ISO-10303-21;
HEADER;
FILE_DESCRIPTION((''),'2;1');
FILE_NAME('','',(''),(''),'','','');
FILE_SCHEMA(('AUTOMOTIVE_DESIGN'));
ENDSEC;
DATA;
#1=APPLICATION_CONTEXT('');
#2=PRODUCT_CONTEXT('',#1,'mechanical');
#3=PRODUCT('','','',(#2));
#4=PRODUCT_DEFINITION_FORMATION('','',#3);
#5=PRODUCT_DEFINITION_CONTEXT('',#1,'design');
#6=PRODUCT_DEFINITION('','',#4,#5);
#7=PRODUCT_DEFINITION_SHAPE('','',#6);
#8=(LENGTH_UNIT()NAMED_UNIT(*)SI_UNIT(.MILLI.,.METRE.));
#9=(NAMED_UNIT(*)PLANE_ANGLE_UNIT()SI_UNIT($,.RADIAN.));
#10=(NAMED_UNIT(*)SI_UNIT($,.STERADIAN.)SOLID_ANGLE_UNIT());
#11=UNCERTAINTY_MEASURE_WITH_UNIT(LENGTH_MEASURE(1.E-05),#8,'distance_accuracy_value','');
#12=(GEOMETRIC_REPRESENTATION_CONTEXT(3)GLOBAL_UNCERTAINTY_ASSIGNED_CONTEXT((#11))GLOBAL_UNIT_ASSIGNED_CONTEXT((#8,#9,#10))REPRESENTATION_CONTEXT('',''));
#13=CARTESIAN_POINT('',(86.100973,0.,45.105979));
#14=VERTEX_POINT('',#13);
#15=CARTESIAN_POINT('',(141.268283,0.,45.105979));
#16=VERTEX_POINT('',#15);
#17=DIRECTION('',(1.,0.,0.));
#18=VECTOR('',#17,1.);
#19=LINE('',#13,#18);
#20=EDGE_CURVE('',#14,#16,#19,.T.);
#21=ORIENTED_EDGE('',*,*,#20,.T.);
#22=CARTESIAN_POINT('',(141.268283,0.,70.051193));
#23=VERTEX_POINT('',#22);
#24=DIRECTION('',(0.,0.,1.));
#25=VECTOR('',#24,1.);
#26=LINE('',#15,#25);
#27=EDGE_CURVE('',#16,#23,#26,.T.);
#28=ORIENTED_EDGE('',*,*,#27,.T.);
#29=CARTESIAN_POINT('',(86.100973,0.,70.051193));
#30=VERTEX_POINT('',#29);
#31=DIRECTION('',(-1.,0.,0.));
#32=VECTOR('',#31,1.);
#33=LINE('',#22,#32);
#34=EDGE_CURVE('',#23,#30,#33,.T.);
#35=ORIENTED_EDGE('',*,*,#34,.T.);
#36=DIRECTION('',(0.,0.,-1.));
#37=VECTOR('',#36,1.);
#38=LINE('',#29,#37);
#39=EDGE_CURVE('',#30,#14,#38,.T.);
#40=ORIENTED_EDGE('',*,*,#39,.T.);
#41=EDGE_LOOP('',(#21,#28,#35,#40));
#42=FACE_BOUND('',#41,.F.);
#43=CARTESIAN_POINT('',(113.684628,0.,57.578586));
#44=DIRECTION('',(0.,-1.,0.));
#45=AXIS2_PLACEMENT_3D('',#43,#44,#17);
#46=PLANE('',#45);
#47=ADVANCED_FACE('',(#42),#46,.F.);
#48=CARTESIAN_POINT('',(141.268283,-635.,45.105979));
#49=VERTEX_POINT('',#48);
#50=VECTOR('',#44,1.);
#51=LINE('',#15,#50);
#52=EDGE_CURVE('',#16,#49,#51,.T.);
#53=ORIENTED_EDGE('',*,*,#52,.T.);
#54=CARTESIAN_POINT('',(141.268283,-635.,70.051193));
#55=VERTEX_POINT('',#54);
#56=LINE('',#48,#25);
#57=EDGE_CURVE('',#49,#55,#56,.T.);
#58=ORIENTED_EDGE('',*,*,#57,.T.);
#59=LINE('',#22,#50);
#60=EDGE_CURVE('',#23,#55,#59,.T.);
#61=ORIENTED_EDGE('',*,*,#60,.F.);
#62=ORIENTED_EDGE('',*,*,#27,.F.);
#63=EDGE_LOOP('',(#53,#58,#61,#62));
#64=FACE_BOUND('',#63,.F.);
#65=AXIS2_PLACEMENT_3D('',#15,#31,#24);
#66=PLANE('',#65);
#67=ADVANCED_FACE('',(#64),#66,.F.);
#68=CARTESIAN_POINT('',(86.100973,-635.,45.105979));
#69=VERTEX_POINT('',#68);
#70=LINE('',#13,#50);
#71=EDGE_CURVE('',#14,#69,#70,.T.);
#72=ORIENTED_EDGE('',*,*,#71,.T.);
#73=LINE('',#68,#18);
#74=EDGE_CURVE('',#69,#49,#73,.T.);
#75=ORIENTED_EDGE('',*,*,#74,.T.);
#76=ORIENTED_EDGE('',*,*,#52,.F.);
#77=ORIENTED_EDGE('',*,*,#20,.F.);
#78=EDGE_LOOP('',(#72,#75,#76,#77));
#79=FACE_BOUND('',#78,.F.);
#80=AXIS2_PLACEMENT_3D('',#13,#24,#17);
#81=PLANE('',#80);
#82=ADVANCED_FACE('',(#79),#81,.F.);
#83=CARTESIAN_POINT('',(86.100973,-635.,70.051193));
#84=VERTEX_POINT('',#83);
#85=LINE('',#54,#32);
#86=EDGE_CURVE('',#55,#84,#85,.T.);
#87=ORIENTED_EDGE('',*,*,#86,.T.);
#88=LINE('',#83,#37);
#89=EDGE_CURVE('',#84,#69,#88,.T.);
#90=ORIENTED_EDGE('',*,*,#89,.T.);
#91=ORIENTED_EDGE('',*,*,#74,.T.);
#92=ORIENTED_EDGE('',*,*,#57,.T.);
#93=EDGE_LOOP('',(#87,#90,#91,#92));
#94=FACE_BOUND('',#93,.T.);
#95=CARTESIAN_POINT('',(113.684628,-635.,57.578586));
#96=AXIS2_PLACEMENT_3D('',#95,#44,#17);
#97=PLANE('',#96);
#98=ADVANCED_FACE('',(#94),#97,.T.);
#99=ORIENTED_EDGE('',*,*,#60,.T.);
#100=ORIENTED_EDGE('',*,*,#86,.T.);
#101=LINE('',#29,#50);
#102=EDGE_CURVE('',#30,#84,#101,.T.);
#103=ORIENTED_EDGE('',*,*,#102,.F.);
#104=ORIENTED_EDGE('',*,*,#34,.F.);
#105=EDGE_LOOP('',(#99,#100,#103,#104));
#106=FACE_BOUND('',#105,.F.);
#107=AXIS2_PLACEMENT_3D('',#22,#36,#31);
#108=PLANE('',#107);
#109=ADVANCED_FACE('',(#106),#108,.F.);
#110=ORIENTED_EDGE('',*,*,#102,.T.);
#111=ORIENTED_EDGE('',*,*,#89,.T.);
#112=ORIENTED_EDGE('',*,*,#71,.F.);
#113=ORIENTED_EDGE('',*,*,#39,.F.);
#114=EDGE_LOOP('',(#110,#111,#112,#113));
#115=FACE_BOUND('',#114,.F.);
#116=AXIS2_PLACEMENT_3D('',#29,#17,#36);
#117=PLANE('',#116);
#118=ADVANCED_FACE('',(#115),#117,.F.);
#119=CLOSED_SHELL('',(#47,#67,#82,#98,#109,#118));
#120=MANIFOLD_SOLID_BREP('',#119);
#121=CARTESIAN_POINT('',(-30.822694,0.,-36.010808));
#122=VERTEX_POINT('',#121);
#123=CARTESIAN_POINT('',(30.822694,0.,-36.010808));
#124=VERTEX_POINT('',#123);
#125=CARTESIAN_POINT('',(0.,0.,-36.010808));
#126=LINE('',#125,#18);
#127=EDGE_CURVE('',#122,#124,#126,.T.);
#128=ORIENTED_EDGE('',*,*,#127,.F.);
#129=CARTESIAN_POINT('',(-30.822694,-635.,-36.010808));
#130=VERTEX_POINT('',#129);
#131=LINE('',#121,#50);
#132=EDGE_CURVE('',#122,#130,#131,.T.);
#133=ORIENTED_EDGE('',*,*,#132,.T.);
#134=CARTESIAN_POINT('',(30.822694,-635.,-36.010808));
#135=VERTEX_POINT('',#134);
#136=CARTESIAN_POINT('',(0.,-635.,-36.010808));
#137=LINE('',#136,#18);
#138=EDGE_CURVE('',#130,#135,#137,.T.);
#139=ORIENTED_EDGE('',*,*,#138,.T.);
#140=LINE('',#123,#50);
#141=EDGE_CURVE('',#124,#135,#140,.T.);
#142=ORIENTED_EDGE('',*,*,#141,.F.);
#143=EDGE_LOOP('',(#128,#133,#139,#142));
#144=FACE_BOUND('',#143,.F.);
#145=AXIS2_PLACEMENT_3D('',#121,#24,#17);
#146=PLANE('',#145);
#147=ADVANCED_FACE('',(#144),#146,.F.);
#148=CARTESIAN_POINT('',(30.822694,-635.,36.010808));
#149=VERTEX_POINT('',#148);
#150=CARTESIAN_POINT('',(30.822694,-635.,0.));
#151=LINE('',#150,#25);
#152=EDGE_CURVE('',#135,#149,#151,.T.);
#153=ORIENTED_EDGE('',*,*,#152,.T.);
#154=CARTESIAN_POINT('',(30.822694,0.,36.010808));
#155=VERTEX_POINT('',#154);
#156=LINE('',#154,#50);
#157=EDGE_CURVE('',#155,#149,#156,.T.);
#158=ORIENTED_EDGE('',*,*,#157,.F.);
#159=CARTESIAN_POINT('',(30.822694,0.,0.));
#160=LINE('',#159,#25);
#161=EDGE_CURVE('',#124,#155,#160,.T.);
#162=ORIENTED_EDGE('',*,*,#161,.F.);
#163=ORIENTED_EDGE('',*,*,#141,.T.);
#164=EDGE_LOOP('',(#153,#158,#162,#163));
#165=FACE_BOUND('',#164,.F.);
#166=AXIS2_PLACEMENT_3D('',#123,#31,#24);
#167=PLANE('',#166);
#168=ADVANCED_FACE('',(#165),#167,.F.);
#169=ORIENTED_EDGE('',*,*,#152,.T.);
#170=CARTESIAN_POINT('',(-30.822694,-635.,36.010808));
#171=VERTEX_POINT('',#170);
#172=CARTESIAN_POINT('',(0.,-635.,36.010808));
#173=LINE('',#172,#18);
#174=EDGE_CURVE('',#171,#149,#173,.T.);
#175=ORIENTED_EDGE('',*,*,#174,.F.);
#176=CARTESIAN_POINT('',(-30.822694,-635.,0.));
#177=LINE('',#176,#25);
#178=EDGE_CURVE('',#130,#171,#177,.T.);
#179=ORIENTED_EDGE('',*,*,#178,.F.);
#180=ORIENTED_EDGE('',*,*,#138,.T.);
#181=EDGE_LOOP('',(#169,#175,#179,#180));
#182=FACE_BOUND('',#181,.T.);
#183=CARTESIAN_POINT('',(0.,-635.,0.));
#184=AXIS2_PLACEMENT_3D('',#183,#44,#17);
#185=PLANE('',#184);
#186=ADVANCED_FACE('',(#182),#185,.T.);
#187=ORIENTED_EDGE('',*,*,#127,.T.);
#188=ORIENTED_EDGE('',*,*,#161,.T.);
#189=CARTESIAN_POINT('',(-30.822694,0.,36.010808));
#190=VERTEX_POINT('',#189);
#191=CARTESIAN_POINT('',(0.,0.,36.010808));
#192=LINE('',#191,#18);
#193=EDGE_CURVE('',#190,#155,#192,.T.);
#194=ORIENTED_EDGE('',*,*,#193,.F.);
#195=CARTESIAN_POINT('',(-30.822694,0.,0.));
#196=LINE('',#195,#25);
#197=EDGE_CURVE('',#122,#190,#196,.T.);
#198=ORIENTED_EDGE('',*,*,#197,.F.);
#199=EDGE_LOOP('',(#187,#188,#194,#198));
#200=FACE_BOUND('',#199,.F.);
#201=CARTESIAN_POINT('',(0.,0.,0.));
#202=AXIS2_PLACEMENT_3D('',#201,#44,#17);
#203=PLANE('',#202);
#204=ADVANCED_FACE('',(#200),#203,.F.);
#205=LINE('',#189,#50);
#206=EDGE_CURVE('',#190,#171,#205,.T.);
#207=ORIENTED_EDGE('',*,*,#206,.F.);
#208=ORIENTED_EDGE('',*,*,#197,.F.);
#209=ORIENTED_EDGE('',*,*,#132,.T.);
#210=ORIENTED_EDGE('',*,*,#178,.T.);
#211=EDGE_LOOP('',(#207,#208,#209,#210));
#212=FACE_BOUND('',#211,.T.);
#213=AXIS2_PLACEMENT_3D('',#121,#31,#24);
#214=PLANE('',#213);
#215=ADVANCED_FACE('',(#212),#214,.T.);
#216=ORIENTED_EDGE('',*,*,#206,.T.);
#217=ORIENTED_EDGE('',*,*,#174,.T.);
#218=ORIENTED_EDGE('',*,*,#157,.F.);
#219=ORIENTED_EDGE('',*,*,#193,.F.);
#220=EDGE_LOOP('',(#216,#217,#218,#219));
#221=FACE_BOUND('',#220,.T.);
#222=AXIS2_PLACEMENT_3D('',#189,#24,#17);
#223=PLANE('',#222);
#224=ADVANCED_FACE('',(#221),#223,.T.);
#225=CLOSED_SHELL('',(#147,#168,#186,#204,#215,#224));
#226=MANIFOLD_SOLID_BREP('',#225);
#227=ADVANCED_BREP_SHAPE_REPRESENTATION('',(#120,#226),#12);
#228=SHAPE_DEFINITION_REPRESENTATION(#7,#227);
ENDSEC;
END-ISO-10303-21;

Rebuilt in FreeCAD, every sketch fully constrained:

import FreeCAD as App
import Part
import Sketcher
from FreeCAD import Vector
Q = App.Units.Quantity

doc = App.newDocument("Part")
body = doc.addObject("PartDesign::Body", "Body")
body.AllowCompound = True

# Sketch on XZ plane
sketch1 = doc.addObject("Sketcher::SketchObject", "Sketch")
body.addObject(sketch1)
sketch1.AttachmentSupport = (doc.XZ_Plane, [""])
sketch1.MapMode = "FlatFace"
sketch1.addGeometry([
    Part.LineSegment(Vector(86, 70, 0), Vector(86, 45, 0)),  # 0
    Part.LineSegment(Vector(86, 45, 0), Vector(141, 45, 0)),  # 1
    Part.LineSegment(Vector(141, 45, 0), Vector(141, 70, 0)),  # 2
    Part.LineSegment(Vector(141, 70, 0), Vector(86, 70, 0)),  # 3
    Part.LineSegment(Vector(-31, 36, 0), Vector(-31, -36, 0)),  # 4
    Part.LineSegment(Vector(-31, -36, 0), Vector(31, -36, 0)),  # 5
    Part.LineSegment(Vector(31, -36, 0), Vector(31, 36, 0)),  # 6
    Part.LineSegment(Vector(31, 36, 0), Vector(-31, 36, 0)),  # 7
], False)
sketch1.addConstraint([
    Sketcher.Constraint("Coincident", 0, 2, 1, 1),
    Sketcher.Constraint("Coincident", 1, 2, 2, 1),
    Sketcher.Constraint("Coincident", 2, 2, 3, 1),
    Sketcher.Constraint("Coincident", 3, 2, 0, 1),
    Sketcher.Constraint("Coincident", 4, 2, 5, 1),
    Sketcher.Constraint("Coincident", 5, 2, 6, 1),
    Sketcher.Constraint("Coincident", 6, 2, 7, 1),
    Sketcher.Constraint("Coincident", 7, 2, 4, 1),
    Sketcher.Constraint("Vertical", 0),
    Sketcher.Constraint("Horizontal", 1),
    Sketcher.Constraint("Vertical", 2),
    Sketcher.Constraint("Horizontal", 3),
    Sketcher.Constraint("Vertical", 4),
    Sketcher.Constraint("Horizontal", 5),
    Sketcher.Constraint("Vertical", 6),
    Sketcher.Constraint("Horizontal", 7),
    Sketcher.Constraint("Symmetric", 4, 2, 6, 2, -1, 1),
    Sketcher.Constraint("DistanceX", 1, 1, 1, 2, Q("55.16731 mm")),
    Sketcher.Constraint("DistanceY", 4, 2, 3, 2, Q("106.062001 mm")),
    Sketcher.Constraint("DistanceX", 5, 1, 5, 2, Q("61.645388 mm")),
    Sketcher.Constraint("DistanceY", 0, 2, 0, 1, Q("24.945214 mm")),
    Sketcher.Constraint("DistanceY", 4, 2, 4, 1, Q("72.021616 mm")),
    Sketcher.Constraint("DistanceX", 5, 2, 0, 2, Q("55.278279 mm")),
])
pad1 = doc.addObject("PartDesign::Pad", "Pad")
body.addObject(pad1)
pad1.Profile = sketch1
pad1.Length = Q("25 in")

doc.recompute()
